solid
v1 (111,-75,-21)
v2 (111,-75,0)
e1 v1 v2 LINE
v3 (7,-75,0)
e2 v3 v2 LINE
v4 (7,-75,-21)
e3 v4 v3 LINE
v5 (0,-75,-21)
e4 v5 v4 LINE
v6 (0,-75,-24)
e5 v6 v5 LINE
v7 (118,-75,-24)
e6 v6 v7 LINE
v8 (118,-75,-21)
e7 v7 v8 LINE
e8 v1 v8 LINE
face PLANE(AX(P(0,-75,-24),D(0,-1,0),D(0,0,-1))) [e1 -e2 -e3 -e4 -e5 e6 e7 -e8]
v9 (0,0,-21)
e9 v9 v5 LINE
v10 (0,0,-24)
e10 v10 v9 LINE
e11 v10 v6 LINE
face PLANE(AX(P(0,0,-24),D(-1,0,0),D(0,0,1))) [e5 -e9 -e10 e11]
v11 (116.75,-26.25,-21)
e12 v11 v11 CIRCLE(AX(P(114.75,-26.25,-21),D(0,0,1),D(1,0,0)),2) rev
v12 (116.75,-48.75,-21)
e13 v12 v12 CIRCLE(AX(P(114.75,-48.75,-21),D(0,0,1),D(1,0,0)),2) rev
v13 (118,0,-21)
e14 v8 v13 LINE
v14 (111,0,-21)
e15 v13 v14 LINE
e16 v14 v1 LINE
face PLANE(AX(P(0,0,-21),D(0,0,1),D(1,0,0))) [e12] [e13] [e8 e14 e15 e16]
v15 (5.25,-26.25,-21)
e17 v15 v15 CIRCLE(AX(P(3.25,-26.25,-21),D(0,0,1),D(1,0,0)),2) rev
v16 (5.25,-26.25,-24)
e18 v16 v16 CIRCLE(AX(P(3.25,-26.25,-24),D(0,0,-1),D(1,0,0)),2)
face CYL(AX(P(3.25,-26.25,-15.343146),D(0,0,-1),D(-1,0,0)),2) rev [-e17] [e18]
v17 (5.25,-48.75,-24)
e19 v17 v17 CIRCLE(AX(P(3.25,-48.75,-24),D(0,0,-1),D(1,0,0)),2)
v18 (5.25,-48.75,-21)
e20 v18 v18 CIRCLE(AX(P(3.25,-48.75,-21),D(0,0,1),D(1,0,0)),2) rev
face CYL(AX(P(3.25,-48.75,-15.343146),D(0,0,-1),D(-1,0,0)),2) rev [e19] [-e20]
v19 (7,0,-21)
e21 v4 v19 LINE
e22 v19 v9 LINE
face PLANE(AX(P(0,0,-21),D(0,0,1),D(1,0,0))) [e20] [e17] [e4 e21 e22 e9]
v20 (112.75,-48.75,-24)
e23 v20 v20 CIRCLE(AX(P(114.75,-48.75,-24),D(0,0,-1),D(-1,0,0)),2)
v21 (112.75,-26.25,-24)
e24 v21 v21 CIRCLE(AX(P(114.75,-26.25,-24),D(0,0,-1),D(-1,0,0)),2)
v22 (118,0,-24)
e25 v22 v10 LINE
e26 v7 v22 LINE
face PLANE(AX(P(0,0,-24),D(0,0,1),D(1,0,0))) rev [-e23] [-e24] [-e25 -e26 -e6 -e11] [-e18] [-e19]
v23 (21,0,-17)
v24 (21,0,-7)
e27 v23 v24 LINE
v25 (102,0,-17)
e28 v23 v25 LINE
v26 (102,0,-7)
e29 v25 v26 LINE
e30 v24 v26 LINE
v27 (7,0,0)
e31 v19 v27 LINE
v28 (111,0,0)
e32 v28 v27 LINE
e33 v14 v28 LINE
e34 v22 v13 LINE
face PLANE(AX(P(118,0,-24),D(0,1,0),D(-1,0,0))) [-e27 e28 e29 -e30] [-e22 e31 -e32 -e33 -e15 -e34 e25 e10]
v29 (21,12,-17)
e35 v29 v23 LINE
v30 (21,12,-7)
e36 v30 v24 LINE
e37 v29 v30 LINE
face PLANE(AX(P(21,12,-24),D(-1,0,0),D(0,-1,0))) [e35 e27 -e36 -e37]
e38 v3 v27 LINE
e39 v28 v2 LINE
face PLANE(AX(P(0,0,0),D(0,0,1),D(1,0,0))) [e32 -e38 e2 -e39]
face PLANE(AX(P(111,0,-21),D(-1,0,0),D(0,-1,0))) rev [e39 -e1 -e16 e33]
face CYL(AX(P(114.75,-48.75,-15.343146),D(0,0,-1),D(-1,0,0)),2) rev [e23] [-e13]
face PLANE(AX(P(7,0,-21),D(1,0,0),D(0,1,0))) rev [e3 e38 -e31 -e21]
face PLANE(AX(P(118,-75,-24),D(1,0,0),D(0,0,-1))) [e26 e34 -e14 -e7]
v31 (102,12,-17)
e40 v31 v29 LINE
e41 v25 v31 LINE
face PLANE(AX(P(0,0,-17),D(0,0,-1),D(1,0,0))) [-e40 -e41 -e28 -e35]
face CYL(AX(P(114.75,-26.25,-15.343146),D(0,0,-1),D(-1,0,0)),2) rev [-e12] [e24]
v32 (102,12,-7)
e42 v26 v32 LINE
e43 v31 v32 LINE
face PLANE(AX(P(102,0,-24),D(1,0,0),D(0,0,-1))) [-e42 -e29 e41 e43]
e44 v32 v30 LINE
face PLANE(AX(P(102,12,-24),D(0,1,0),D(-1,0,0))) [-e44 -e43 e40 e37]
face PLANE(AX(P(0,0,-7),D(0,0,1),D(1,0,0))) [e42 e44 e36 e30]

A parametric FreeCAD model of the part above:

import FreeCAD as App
import Part
import Sketcher
from FreeCAD import Vector
Q = App.Units.Quantity

doc = App.newDocument("Part")
params = doc.addObject("Spreadsheet::Sheet", "Params")
for row, (alias, value) in enumerate([
    ("sketch1_width", "118 mm"),
    ("sketch1_width2", "16 mm"),
    ("sketch1_width3", "81 mm"),
    ("sketch1_height", "75 mm"),
    ("sketch1_height2", "12 mm"),
    ("pad1_length", "24 mm"),
    ("sketch2_width", "7 mm"),
    ("sketch2_height", "75 mm"),
    ("pocket1_length", "21 mm"),
    ("sketch3_width", "81 mm"),
    ("sketch3_height", "12 mm"),
    ("pocket2_length", "7 mm"),
    ("sketch4_diameter", "4 mm"),
    ("pocket3_length", "3 mm"),
], start=1):
    params.set(f"A{row}", alias)
    params.set(f"B{row}", "=" + value)
    params.setAlias(f"B{row}", alias)

body = doc.addObject("PartDesign::Body", "Body")

# Sketch on XY plane
sketch1 = body.newObject("Sketcher::SketchObject", "Sketch")
sketch1.AttachmentSupport = (doc.getObject("XY_Plane"), [""])
sketch1.MapMode = "FlatFace"
sketch1.addGeometry([
    Part.LineSegment(Vector(0, 0, 0), Vector(0, -75, 0)),  # 0
    Part.LineSegment(Vector(0, -75, 0), Vector(118, -75, 0)),  # 1
    Part.LineSegment(Vector(118, -75, 0), Vector(118, 0, 0)),  # 2
    Part.LineSegment(Vector(118, 0, 0), Vector(102, 0, 0)),  # 3
    Part.LineSegment(Vector(102, 0, 0), Vector(102, 12, 0)),  # 4
    Part.LineSegment(Vector(102, 12, 0), Vector(21, 12, 0)),  # 5
    Part.LineSegment(Vector(21, 12, 0), Vector(21, 0, 0)),  # 6
    Part.LineSegment(Vector(21, 0, 0), Vector(0, 0, 0)),  # 7
], False)
sketch1.addConstraint([
    Sketcher.Constraint("Coincident", 0, 2, 1, 1),
    Sketcher.Constraint("Coincident", 1, 2, 2, 1),
    Sketcher.Constraint("Coincident", 2, 2, 3, 1),
    Sketcher.Constraint("Coincident", 3, 2, 4, 1),
    Sketcher.Constraint("Coincident", 4, 2, 5, 1),
    Sketcher.Constraint("Coincident", 5, 2, 6, 1),
    Sketcher.Constraint("Coincident", 6, 2, 7, 1),
    Sketcher.Constraint("Coincident", 7, 2, 0, 1),
    Sketcher.Constraint("Vertical", 0),
    Sketcher.Constraint("Horizontal", 1),
    Sketcher.Constraint("Vertical", 2),
    Sketcher.Constraint("Horizontal", 3),
    Sketcher.Constraint("Vertical", 4),
    Sketcher.Constraint("Horizontal", 5),
    Sketcher.Constraint("Vertical", 6),
    Sketcher.Constraint("Horizontal", 7),
    Sketcher.Constraint("Coincident", 7, 2, -1, 1),
    Sketcher.Constraint("PointOnObject", 2, 2, -1),
    Sketcher.Constraint("DistanceX", 1, 1, 1, 2, Q("118 mm")),
    Sketcher.Constraint("DistanceX", 3, 2, 3, 1, Q("16 mm")),
    Sketcher.Constraint("DistanceX", 5, 2, 5, 1, Q("81 mm")),
    Sketcher.Constraint("DistanceY", 0, 2, 0, 1, Q("75 mm")),
    Sketcher.Constraint("DistanceY", 4, 1, 4, 2, Q("12 mm")),
])
sketch1.setExpression("Constraints[18]", "Params.sketch1_width")
sketch1.setExpression("Constraints[19]", "Params.sketch1_width2")
sketch1.setExpression("Constraints[20]", "Params.sketch1_width3")
sketch1.setExpression("Constraints[21]", "Params.sketch1_height")
sketch1.setExpression("Constraints[22]", "Params.sketch1_height2")
pad1 = body.newObject("PartDesign::Pad", "Pad")
pad1.Profile = sketch1
pad1.setExpression("Length", "Params.pad1_length")
pad1.Reversed = True

# Sketch on XY plane
sketch2 = body.newObject("Sketcher::SketchObject", "Sketch001")
sketch2.AttachmentSupport = (doc.getObject("XY_Plane"), [""])
sketch2.MapMode = "FlatFace"
sketch2.addGeometry([
    Part.LineSegment(Vector(0, 0, 0), Vector(0, -75, 0)),  # 0
    Part.LineSegment(Vector(0, -75, 0), Vector(7, -75, 0)),  # 1
    Part.LineSegment(Vector(7, -75, 0), Vector(7, 0, 0)),  # 2
    Part.LineSegment(Vector(7, 0, 0), Vector(0, 0, 0)),  # 3
    Part.LineSegment(Vector(111, 0, 0), Vector(111, -75, 0)),  # 4
    Part.LineSegment(Vector(111, -75, 0), Vector(118, -75, 0)),  # 5
    Part.LineSegment(Vector(118, -75, 0), Vector(118, 0, 0)),  # 6
    Part.LineSegment(Vector(118, 0, 0), Vector(111, 0, 0)),  # 7
], False)
sketch2.addConstraint([
    Sketcher.Constraint("Coincident", 0, 2, 1, 1),
    Sketcher.Constraint("Coincident", 1, 2, 2, 1),
    Sketcher.Constraint("Coincident", 2, 2, 3, 1),
    Sketcher.Constraint("Coincident", 3, 2, 0, 1),
    Sketcher.Constraint("Coincident", 4, 2, 5, 1),
    Sketcher.Constraint("Coincident", 5, 2, 6, 1),
    Sketcher.Constraint("Coincident", 6, 2, 7, 1),
    Sketcher.Constraint("Coincident", 7, 2, 4, 1),
    Sketcher.Constraint("Vertical", 0),
    Sketcher.Constraint("Horizontal", 1),
    Sketcher.Constraint("Vertical", 2),
    Sketcher.Constraint("Horizontal", 3),
    Sketcher.Constraint("Vertical", 4),
    Sketcher.Constraint("Horizontal", 5),
    Sketcher.Constraint("Vertical", 6),
    Sketcher.Constraint("Horizontal", 7),
    Sketcher.Constraint("Coincident", 3, 2, -1, 1),
    Sketcher.Constraint("PointOnObject", 6, 2, -1),
    Sketcher.Constraint("Horizontal", 1, 2, 4, 2),
    Sketcher.Constraint("Equal", 3, 5),
    Sketcher.Constraint("DistanceX", 1, 1, 1, 2, Q("7 mm")),
    Sketcher.Constraint("DistanceY", 0, 2, 0, 1, Q("75 mm")),
    Sketcher.Constraint("DistanceX", -1, 1, 4, 2, Q("111 mm")),
])
sketch2.setExpression("Constraints[20]", "Params.sketch2_width")
sketch2.setExpression("Constraints[21]", "Params.sketch2_height")
pocket1 = body.newObject("PartDesign::Pocket", "Pocket")
pocket1.Profile = sketch2
pocket1.setExpression("Length", "Params.pocket1_length")

# Sketch on XY plane
sketch3 = body.newObject("Sketcher::SketchObject", "Sketch002")
sketch3.AttachmentSupport = (doc.getObject("XY_Plane"), [""])
sketch3.MapMode = "FlatFace"
sketch3.addGeometry([
    Part.LineSegment(Vector(21, 12, 0), Vector(21, 0, 0)),
    Part.LineSegment(Vector(21, 0, 0), Vector(102, 0, 0)),
    Part.LineSegment(Vector(102, 0, 0), Vector(102, 12, 0)),
    Part.LineSegment(Vector(102, 12, 0), Vector(21, 12, 0)),
], False)
sketch3.addConstraint([
    Sketcher.Constraint("Coincident", 0, 2, 1, 1),
    Sketcher.Constraint("Coincident", 1, 2, 2, 1),
    Sketcher.Constraint("Coincident", 2, 2, 3, 1),
    Sketcher.Constraint("Coincident", 3, 2, 0, 1),
    Sketcher.Constraint("Vertical", 0),
    Sketcher.Constraint("Horizontal", 1),
    Sketcher.Constraint("Vertical", 2),
    Sketcher.Constraint("Horizontal", 3),
    Sketcher.Constraint("PointOnObject", 0, 2, -1),
    Sketcher.Constraint("DistanceX", 1, 1, 1, 2, Q("81 mm")),
    Sketcher.Constraint("DistanceY", 0, 2, 0, 1, Q("12 mm")),
    Sketcher.Constraint("DistanceX", -1, 1, 0, 2, Q("21 mm")),
])
sketch3.setExpression("Constraints[9]", "Params.sketch3_width")
sketch3.setExpression("Constraints[10]", "Params.sketch3_height")
pocket2 = body.newObject("PartDesign::Pocket", "Pocket001")
pocket2.Profile = sketch3
pocket2.setExpression("Length", "Params.pocket2_length")
doc.recompute()

datumplane = body.newObject("PartDesign::Plane", "DatumPlane")
datumplane.AttachmentSupport = (doc.getObject("XY_Plane"), [""])
datumplane.MapMode = "FlatFace"
datumplane.AttachmentOffset = App.Placement(Vector(0, 0, -12), App.Rotation())
mirrored = body.newObject("PartDesign::Mirrored", "Mirrored")
mirrored.Originals = [pocket2]
mirrored.MirrorPlane = (datumplane, [""])
body.Tip = mirrored

# Sketch on XY plane
sketch4 = body.newObject("Sketcher::SketchObject", "Sketch003")
sketch4.AttachmentSupport = (doc.getObject("XY_Plane"), [""])
sketch4.MapMode = "FlatFace"
sketch4.AttachmentOffset = App.Placement(Vector(0, 0, -24), App.Rotation())
sketch4.addGeometry([
    Part.Circle(Vector(114.75, -26.25, 0), Vector(0, 0, 1), 2),
    Part.Circle(Vector(114.75, -48.75, 0), Vector(0, 0, 1), 2),
    Part.Circle(Vector(3.25, -48.75, 0), Vector(0, 0, 1), 2),
    Part.Circle(Vector(3.25, -26.25, 0), Vector(0, 0, 1), 2),
], False)
sketch4.addConstraint([
    Sketcher.Constraint("Equal", 0, 1),
    Sketcher.Constraint("Equal", 1, 2),
    Sketcher.Constraint("Equal", 2, 3),
    Sketcher.Constraint("Horizontal", 1, 3, 2, 3),
    Sketcher.Constraint("Horizontal", 0, 3, 3, 3),
    Sketcher.Constraint("Vertical", 0, 3, 1, 3),
    Sketcher.Constraint("Vertical", 2, 3, 3, 3),
    Sketcher.Constraint("Diameter", 0, Q("4 mm")),
    Sketcher.Constraint("DistanceY", 1, 3, 0, 3, Q("22.5 mm")),
    Sketcher.Constraint("DistanceX", 2, 3, 1, 3, Q("111.5 mm")),
    Sketcher.Constraint("DistanceX", -1, 1, 0, 3, Q("114.75 mm")),
    Sketcher.Constraint("DistanceY", 0, 3, -1, 1, Q("26.25 mm")),
])
sketch4.setExpression("Constraints[7]", "Params.sketch4_diameter")
pocket3 = body.newObject("PartDesign::Pocket", "Pocket002")
pocket3.Profile = sketch4
pocket3.setExpression("Length", "Params.pocket3_length")
pocket3.Reversed = True

doc.recompute()
